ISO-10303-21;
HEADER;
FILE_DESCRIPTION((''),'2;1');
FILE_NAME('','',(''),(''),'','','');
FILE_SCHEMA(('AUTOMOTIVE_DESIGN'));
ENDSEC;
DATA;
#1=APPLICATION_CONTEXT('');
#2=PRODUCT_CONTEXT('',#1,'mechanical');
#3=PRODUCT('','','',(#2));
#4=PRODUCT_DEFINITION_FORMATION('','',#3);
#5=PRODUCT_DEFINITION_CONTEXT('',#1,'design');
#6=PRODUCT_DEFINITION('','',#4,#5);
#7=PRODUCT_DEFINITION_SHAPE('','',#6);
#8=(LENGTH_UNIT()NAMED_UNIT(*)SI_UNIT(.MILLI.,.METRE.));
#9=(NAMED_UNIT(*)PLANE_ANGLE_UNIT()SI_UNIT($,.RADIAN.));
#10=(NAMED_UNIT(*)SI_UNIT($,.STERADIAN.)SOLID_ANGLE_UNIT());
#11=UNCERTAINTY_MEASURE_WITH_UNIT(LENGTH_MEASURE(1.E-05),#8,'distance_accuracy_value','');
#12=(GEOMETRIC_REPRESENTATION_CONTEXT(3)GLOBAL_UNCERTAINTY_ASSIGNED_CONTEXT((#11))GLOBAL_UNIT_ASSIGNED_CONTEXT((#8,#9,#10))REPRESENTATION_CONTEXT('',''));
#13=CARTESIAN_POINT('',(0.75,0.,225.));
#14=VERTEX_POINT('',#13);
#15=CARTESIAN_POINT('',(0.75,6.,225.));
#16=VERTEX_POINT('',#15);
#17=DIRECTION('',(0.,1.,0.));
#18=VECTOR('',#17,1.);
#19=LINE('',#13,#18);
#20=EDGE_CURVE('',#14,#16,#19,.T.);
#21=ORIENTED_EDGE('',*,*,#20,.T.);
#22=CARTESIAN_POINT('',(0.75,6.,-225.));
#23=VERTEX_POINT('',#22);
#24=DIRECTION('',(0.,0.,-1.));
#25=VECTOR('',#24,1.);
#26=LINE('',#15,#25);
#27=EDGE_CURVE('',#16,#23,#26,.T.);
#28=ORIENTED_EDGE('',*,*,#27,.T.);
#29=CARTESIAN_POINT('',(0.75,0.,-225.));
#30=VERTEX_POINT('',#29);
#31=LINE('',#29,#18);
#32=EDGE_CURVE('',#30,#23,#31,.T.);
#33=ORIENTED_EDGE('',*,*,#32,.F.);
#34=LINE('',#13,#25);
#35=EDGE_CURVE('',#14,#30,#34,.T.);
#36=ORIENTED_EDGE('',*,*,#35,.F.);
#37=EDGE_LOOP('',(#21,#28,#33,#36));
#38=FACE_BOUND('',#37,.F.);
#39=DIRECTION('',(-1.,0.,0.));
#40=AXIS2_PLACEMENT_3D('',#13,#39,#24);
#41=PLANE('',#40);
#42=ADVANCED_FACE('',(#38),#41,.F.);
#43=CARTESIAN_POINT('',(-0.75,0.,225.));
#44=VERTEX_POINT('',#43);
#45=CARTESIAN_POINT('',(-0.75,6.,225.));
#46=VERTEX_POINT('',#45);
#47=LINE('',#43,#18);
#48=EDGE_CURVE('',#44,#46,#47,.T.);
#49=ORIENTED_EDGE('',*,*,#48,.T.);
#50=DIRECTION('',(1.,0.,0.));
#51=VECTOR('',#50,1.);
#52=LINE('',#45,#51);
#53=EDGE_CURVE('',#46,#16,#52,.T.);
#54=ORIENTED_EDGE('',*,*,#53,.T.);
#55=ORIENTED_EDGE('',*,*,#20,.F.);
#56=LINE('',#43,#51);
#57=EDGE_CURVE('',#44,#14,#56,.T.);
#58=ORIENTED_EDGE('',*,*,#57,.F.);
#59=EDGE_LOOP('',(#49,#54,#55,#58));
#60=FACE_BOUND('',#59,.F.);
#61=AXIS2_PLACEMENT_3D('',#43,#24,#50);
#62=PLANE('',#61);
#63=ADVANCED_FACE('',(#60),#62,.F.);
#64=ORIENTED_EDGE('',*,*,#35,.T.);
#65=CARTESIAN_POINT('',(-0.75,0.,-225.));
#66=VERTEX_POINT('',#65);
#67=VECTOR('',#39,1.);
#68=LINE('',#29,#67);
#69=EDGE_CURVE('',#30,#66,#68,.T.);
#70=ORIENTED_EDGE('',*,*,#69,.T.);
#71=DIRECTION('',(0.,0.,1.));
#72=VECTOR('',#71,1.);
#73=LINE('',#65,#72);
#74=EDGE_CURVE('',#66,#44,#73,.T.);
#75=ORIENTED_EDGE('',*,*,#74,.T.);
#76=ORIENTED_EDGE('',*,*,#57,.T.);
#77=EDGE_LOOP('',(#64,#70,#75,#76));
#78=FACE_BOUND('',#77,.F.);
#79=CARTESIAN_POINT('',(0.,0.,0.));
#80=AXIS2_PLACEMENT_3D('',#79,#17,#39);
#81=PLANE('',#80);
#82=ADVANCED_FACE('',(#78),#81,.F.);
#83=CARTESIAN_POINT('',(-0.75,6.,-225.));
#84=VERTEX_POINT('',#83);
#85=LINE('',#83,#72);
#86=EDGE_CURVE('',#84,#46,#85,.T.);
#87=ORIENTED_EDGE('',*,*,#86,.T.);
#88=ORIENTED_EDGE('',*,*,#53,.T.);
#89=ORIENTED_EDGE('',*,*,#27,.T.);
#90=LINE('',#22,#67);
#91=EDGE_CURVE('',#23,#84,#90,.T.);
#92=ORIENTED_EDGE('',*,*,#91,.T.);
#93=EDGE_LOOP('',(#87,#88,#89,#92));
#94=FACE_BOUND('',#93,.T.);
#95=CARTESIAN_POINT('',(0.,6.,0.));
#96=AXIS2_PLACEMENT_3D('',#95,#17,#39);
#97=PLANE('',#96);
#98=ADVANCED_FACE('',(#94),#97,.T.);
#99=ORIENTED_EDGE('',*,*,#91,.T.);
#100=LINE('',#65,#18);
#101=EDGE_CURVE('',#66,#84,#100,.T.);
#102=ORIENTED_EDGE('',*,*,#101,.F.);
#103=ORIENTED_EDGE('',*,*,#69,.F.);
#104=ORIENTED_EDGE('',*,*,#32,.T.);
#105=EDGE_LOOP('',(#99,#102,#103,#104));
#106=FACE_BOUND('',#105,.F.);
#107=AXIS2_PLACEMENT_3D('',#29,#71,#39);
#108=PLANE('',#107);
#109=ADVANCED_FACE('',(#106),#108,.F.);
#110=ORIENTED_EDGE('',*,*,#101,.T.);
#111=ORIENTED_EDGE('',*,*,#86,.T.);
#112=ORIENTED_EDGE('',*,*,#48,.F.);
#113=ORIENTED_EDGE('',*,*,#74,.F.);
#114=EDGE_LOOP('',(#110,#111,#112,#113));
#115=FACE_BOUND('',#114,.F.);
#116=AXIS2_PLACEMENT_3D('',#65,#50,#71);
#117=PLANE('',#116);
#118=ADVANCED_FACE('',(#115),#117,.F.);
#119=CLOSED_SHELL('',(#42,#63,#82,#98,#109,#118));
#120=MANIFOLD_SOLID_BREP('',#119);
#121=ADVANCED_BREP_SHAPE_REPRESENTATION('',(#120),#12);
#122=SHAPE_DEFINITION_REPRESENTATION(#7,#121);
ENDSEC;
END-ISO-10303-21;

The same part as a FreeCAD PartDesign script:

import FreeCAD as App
import Part
import Sketcher
Q = App.Units.Quantity

doc = App.newDocument("Part")
params = doc.addObject("Spreadsheet::Sheet", "Params")
for row, (alias, value) in enumerate([
    ("sketch1_height", "450 mm"),
    ("sketch1_width", "1.5 mm"),
    ("pad1_length", "6 mm"),
], start=1):
    params.set(f"A{row}", alias)
    params.set(f"B{row}", "=" + value)
    params.setAlias(f"B{row}", alias)

body = doc.addObject("PartDesign::Body", "Body")

# Sketch on XZ plane
sketch1 = body.newObject("Sketcher::SketchObject", "Sketch")
sketch1.AttachmentSupport = (doc.getObject("XZ_Plane"), [""])
sketch1.MapMode = "FlatFace"
sketch1.addGeometry(Part.LineSegment(App.Vector(0.8, 225, 0), App.Vector(0.8, -225, 0)), False)
sketch1.addGeometry(Part.LineSegment(App.Vector(0.8, -225, 0), App.Vector(-0.8, -225, 0)), False)
sketch1.addGeometry(Part.LineSegment(App.Vector(-0.8, -225, 0), App.Vector(-0.8, 225, 0)), False)
sketch1.addGeometry(Part.LineSegment(App.Vector(-0.8, 225, 0), App.Vector(0.8, 225, 0)), False)
sketch1.addConstraint(Sketcher.Constraint("Coincident", 0, 2, 1, 1))
sketch1.addConstraint(Sketcher.Constraint("Coincident", 1, 2, 2, 1))
sketch1.addConstraint(Sketcher.Constraint("Coincident", 2, 2, 3, 1))
sketch1.addConstraint(Sketcher.Constraint("Coincident", 3, 2, 0, 1))
sketch1.addConstraint(Sketcher.Constraint("Vertical", 0))
sketch1.addConstraint(Sketcher.Constraint("Horizontal", 1))
sketch1.addConstraint(Sketcher.Constraint("Vertical", 2))
sketch1.addConstraint(Sketcher.Constraint("Horizontal", 3))
sketch1.addConstraint(Sketcher.Constraint("Symmetric", 0, 2, 2, 2, -1, 1))
sketch1.addConstraint(Sketcher.Constraint("DistanceY", 0, 2, 0, 1, Q("450 mm")))
sketch1.addConstraint(Sketcher.Constraint("DistanceX", 1, 2, 1, 1, Q("1.5 mm")))
sketch1.setExpression("Constraints[9]", "Params.sketch1_height")
sketch1.setExpression("Constraints[10]", "Params.sketch1_width")
pad1 = body.newObject("PartDesign::Pad", "Pad")
pad1.Profile = sketch1
pad1.setExpression("Length", "Params.pad1_length")
pad1.Reversed = True

doc.recompute()
